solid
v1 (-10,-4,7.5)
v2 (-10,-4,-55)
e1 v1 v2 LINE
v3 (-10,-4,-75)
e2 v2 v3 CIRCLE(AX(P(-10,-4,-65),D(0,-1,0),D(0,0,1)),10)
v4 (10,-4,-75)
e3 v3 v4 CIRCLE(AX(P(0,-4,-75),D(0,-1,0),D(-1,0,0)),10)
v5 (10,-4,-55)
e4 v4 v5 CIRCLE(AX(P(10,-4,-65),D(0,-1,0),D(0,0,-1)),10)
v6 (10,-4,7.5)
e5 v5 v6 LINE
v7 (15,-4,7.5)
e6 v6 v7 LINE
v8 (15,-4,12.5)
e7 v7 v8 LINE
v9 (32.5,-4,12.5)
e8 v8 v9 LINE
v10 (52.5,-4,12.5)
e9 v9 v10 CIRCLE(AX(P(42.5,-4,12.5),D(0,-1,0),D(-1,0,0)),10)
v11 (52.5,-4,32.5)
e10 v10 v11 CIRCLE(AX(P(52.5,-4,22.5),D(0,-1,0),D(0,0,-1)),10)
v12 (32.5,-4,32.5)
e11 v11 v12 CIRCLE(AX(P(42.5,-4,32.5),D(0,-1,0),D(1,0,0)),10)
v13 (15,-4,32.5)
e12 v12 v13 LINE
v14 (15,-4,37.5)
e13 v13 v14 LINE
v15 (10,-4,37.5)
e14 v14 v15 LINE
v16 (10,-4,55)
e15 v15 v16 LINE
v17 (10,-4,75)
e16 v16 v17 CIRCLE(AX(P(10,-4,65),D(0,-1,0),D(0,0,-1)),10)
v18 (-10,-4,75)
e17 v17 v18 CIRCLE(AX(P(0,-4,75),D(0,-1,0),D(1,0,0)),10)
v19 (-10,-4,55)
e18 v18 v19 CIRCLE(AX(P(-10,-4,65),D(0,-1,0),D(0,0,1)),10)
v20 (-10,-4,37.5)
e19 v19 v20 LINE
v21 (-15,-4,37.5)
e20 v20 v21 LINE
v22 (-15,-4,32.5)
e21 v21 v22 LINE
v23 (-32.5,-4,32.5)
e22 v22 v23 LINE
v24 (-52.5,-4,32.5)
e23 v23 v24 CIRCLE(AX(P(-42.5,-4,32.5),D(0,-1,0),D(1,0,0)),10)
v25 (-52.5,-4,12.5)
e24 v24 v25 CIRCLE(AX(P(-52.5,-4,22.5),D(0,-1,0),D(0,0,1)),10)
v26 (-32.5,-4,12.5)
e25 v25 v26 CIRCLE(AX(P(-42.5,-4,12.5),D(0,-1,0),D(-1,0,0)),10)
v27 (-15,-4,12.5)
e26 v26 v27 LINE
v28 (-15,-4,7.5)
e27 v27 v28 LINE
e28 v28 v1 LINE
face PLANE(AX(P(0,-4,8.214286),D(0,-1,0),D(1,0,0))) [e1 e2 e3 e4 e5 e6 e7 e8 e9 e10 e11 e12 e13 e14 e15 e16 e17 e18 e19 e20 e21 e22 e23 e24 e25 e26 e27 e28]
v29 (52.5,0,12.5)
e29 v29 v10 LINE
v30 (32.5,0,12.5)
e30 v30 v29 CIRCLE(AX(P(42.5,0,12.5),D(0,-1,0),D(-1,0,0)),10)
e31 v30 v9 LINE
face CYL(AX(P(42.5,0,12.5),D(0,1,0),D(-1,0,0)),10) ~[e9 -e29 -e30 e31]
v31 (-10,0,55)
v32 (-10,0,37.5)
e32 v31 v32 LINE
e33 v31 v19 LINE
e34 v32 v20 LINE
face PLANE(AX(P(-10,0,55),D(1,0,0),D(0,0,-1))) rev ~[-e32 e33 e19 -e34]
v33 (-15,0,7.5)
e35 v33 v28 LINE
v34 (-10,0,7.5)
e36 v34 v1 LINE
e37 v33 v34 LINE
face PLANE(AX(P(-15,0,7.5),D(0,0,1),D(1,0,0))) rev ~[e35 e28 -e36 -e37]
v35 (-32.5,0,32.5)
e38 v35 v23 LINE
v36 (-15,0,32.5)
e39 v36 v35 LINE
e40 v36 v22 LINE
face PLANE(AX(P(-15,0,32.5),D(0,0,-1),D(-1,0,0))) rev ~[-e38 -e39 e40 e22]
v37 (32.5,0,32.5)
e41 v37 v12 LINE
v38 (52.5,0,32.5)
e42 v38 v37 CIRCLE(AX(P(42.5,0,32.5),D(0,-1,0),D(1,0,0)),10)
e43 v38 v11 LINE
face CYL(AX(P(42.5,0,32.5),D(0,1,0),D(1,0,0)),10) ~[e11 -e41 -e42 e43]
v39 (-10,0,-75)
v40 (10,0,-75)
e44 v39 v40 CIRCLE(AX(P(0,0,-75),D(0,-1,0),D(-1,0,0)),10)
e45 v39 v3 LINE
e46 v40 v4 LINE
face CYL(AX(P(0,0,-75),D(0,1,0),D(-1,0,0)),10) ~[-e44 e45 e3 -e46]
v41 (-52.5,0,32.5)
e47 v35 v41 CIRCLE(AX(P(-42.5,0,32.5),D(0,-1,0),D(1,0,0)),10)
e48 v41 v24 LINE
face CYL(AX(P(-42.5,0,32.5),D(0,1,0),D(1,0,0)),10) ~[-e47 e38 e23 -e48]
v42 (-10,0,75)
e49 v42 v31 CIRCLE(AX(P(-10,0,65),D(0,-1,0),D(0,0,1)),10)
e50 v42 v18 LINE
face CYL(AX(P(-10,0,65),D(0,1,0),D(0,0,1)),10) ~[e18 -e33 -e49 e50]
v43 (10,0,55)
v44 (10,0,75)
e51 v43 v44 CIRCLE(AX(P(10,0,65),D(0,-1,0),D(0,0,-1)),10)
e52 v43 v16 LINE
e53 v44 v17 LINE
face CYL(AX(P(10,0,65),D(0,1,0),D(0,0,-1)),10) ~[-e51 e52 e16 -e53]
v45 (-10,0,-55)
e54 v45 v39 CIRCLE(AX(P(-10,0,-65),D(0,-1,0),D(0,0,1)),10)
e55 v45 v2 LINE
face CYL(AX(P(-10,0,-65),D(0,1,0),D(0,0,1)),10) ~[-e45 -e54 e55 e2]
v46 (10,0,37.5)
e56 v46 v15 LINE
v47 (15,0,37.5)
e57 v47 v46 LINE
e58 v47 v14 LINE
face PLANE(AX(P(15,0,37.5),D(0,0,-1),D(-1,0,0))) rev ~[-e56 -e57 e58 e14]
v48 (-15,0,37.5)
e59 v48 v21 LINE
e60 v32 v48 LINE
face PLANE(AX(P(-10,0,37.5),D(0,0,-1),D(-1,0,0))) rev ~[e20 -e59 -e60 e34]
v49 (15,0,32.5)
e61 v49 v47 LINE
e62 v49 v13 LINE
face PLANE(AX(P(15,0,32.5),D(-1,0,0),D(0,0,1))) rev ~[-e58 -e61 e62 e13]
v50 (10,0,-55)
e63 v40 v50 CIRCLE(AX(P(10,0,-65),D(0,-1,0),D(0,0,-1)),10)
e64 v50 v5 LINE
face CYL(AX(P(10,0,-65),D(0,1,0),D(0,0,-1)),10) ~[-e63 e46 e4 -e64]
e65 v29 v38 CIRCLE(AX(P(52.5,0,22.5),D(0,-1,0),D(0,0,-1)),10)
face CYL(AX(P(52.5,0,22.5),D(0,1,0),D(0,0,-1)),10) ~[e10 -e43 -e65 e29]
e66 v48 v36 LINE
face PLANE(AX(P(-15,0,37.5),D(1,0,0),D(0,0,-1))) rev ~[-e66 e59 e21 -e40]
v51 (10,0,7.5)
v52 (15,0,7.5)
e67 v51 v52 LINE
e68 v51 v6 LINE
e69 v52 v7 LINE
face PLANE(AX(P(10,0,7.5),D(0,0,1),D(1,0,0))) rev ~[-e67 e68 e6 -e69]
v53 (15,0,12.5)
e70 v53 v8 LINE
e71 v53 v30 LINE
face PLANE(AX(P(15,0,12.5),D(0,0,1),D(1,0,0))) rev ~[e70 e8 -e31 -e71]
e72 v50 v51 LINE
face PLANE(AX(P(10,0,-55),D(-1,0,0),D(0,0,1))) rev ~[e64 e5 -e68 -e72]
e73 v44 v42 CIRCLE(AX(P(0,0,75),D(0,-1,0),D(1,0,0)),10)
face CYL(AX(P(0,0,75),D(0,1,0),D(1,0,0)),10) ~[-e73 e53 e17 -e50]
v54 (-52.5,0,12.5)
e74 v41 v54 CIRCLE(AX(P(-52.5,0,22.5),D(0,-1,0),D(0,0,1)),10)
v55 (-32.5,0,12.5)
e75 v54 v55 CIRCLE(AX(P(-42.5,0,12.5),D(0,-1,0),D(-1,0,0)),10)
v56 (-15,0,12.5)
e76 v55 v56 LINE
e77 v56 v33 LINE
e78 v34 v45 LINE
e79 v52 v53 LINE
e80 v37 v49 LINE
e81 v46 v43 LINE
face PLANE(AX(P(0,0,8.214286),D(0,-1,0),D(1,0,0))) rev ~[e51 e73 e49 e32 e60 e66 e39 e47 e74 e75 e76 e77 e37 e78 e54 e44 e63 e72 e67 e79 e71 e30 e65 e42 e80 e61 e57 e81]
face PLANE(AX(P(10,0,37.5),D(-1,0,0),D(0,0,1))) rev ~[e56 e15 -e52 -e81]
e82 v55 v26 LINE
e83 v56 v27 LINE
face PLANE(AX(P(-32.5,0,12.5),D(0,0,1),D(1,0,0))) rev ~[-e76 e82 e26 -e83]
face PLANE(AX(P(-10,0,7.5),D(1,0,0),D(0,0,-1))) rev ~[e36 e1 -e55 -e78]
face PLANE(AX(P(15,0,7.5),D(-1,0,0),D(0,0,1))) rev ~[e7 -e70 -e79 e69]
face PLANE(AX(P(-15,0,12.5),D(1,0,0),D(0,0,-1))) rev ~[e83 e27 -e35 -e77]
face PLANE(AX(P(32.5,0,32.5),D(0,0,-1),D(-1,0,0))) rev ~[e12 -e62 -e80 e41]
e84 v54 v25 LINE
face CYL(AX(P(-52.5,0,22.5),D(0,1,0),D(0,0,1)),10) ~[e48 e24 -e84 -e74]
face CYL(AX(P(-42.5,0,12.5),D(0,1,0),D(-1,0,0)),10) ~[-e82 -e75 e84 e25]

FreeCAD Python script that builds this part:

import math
import FreeCAD as App
import Part
import Sketcher

V = App.Vector

doc = App.newDocument("Part")
params = doc.addObject("Spreadsheet::Sheet", "Params")
for row, (alias, value) in enumerate([
    ("sketch1_radius", "10 mm"),
    ("sketch1_width", "5 mm"),
    ("sketch1_width2", "17.5 mm"),
    ("sketch1_height", "62.5 mm"),
    ("pad1_length", "4 mm"),
], start=1):
    params.set(f"A{row}", alias)
    params.set(f"B{row}", "=" + value)
    params.setAlias(f"B{row}", alias)

body = doc.addObject("PartDesign::Body", "Body")

# Sketch on XZ plane
sketch1 = body.newObject("Sketcher::SketchObject", "Sketch")
sketch1.AttachmentSupport = (doc.getObject("XZ_Plane"), [""])
sketch1.MapMode = "FlatFace"
sketch1.addGeometry([
    Part.LineSegment(V(-32, 12, 0), V(-15, 12, 0)),  # 0
    Part.LineSegment(V(-15, 12, 0), V(-15, 8, 0)),  # 1
    Part.LineSegment(V(-15, 8, 0), V(-10, 8, 0)),  # 2
    Part.LineSegment(V(-10, 8, 0), V(-10, -55, 0)),  # 3
    Part.ArcOfCircle(Part.Circle(V(-10, -65, 0), V(0, 0, 1), 10), math.radians(90), math.radians(270)),  # 4
    Part.ArcOfCircle(Part.Circle(V(0, -75, 0), V(0, 0, 1), 10), math.radians(180), math.radians(360)),  # 5
    Part.ArcOfCircle(Part.Circle(V(10, -65, 0), V(0, 0, 1), 10), math.radians(-90), math.radians(90)),  # 6
    Part.LineSegment(V(10, -55, 0), V(10, 8, 0)),  # 7
    Part.LineSegment(V(10, 8, 0), V(15, 8, 0)),  # 8
    Part.LineSegment(V(15, 8, 0), V(15, 12, 0)),  # 9
    Part.LineSegment(V(15, 12, 0), V(32, 12, 0)),  # 10
    Part.ArcOfCircle(Part.Circle(V(42, 12, 0), V(0, 0, 1), 10), math.radians(180), math.radians(360)),  # 11
    Part.ArcOfCircle(Part.Circle(V(52, 22, 0), V(0, 0, 1), 10), math.radians(-90), math.radians(90)),  # 12
    Part.ArcOfCircle(Part.Circle(V(42, 32, 0), V(0, 0, 1), 10), math.radians(0), math.radians(180)),  # 13
    Part.LineSegment(V(32, 32, 0), V(15, 32, 0)),  # 14
    Part.LineSegment(V(15, 32, 0), V(15, 38, 0)),  # 15
    Part.LineSegment(V(15, 38, 0), V(10, 38, 0)),  # 16
    Part.LineSegment(V(10, 38, 0), V(10, 55, 0)),  # 17
    Part.ArcOfCircle(Part.Circle(V(10, 65, 0), V(0, 0, 1), 10), math.radians(-90), math.radians(90)),  # 18
    Part.ArcOfCircle(Part.Circle(V(0, 75, 0), V(0, 0, 1), 10), math.radians(0), math.radians(180)),  # 19
    Part.ArcOfCircle(Part.Circle(V(-10, 65, 0), V(0, 0, 1), 10), math.radians(90), math.radians(270)),  # 20
    Part.LineSegment(V(-10, 55, 0), V(-10, 38, 0)),  # 21
    Part.LineSegment(V(-10, 38, 0), V(-15, 38, 0)),  # 22
    Part.LineSegment(V(-15, 38, 0), V(-15, 32, 0)),  # 23
    Part.LineSegment(V(-15, 32, 0), V(-32, 32, 0)),  # 24
    Part.ArcOfCircle(Part.Circle(V(-42, 32, 0), V(0, 0, 1), 10), math.radians(0), math.radians(180)),  # 25
    Part.ArcOfCircle(Part.Circle(V(-52, 22, 0), V(0, 0, 1), 10), math.radians(90), math.radians(270)),  # 26
    Part.ArcOfCircle(Part.Circle(V(-42, 12, 0), V(0, 0, 1), 10), math.radians(180), math.radians(360)),  # 27
], False)
sketch1.addConstraint([
    Sketcher.Constraint("Coincident", 0, 2, 1, 1),
    Sketcher.Constraint("Coincident", 1, 2, 2, 1),
    Sketcher.Constraint("Coincident", 2, 2, 3, 1),
    Sketcher.Constraint("Coincident", 3, 2, 4, 1),
    Sketcher.Constraint("Coincident", 4, 2, 5, 1),
    Sketcher.Constraint("Coincident", 5, 2, 6, 1),
    Sketcher.Constraint("Coincident", 6, 2, 7, 1),
    Sketcher.Constraint("Coincident", 7, 2, 8, 1),
    Sketcher.Constraint("Coincident", 8, 2, 9, 1),
    Sketcher.Constraint("Coincident", 9, 2, 10, 1),
    Sketcher.Constraint("Coincident", 10, 2, 11, 1),
    Sketcher.Constraint("Coincident", 11, 2, 12, 1),
    Sketcher.Constraint("Coincident", 12, 2, 13, 1),
    Sketcher.Constraint("Coincident", 13, 2, 14, 1),
    Sketcher.Constraint("Coincident", 14, 2, 15, 1),
    Sketcher.Constraint("Coincident", 15, 2, 16, 1),
    Sketcher.Constraint("Coincident", 16, 2, 17, 1),
    Sketcher.Constraint("Coincident", 17, 2, 18, 1),
    Sketcher.Constraint("Coincident", 18, 2, 19, 1),
    Sketcher.Constraint("Coincident", 19, 2, 20, 1),
    Sketcher.Constraint("Coincident", 20, 2, 21, 1),
    Sketcher.Constraint("Coincident", 21, 2, 22, 1),
    Sketcher.Constraint("Coincident", 22, 2, 23, 1),
    Sketcher.Constraint("Coincident", 23, 2, 24, 1),
    Sketcher.Constraint("Coincident", 24, 2, 25, 1),
    Sketcher.Constraint("Coincident", 25, 2, 26, 1),
    Sketcher.Constraint("Coincident", 26, 2, 27, 1),
    Sketcher.Constraint("Coincident", 27, 2, 0, 1),
    Sketcher.Constraint("Horizontal", 0),
    Sketcher.Constraint("Vertical", 1),
    Sketcher.Constraint("Horizontal", 2),
    Sketcher.Constraint("Vertical", 3),
    Sketcher.Constraint("Vertical", 7),
    Sketcher.Constraint("Horizontal", 8),
    Sketcher.Constraint("Vertical", 9),
    Sketcher.Constraint("Horizontal", 10),
    Sketcher.Constraint("Horizontal", 14),
    Sketcher.Constraint("Vertical", 15),
    Sketcher.Constraint("Horizontal", 16),
    Sketcher.Constraint("Vertical", 17),
    Sketcher.Constraint("Vertical", 21),
    Sketcher.Constraint("Horizontal", 22),
    Sketcher.Constraint("Vertical", 23),
    Sketcher.Constraint("Horizontal", 24),
    Sketcher.Constraint("Equal", 4, 5),
    Sketcher.Constraint("Equal", 5, 6),
    Sketcher.Constraint("Equal", 6, 11),
    Sketcher.Constraint("Equal", 11, 12),
    Sketcher.Constraint("Equal", 12, 13),
    Sketcher.Constraint("Equal", 13, 18),
    Sketcher.Constraint("Equal", 18, 19),
    Sketcher.Constraint("Equal", 19, 20),
    Sketcher.Constraint("Equal", 20, 25),
    Sketcher.Constraint("Equal", 25, 26),
    Sketcher.Constraint("Equal", 26, 27),
    Sketcher.Constraint("Symmetric", 4, 3, 18, 3, -1, 1),
    Sketcher.Constraint("Symmetric", 5, 3, 19, 3, -1, 1),
    Sketcher.Constraint("Symmetric", 6, 3, 20, 3, -1, 1),
    Sketcher.Constraint("Symmetric", 4, 3, 6, 3, -2),
    Sketcher.Constraint("Symmetric", 13, 3, 25, 3, -2),
    Sketcher.Constraint("Symmetric", 12, 3, 26, 3, -2),
    Sketcher.Constraint("Symmetric", 11, 3, 27, 3, -2),
    Sketcher.Constraint("Symmetric", 2, 2, 7, 2, -2),
    Sketcher.Constraint("Symmetric", 0, 2, 9, 2, -2),
    Sketcher.Constraint("Symmetric", 16, 2, 21, 2, -2),
    Sketcher.Constraint("Symmetric", 14, 2, 23, 2, -2),
    Sketcher.Constraint("PointOnObject", 5, 3, -2),
    Sketcher.Constraint("Horizontal", 27, 3, 0, 2),
    Sketcher.Constraint("Horizontal", 5, 3, 4, 2),
    Sketcher.Constraint("Horizontal", 10, 2, 11, 2),
    Sketcher.Constraint("Horizontal", 25, 3, 12, 2),
    Sketcher.Constraint("Horizontal", 12, 2, 13, 2),
    Sketcher.Constraint("Vertical", 11, 3, 13, 3),
    Sketcher.Constraint("Vertical", 20, 3, 2, 2),
    Sketcher.Constraint("Vertical", 3, 2, 4, 2),
    Sketcher.Constraint("Vertical", 12, 3, 11, 2),
    Sketcher.Constraint("Vertical", 9, 2, 14, 2),
    Sketcher.Constraint("Vertical", 7, 2, 16, 2),
    Sketcher.Constraint("Equal", 22, 1),
    Sketcher.Constraint("Equal", 9, 15),
    Sketcher.Constraint("Equal", 24, 17),
    Sketcher.Constraint("Radius", 4, 10.0),
    Sketcher.Constraint("DistanceX", 2, 1, 2, 2, 5.0),
    Sketcher.Constraint("DistanceX", 0, 1, 0, 2, 17.5),
    Sketcher.Constraint("DistanceY", 3, 2, 3, 1, 62.5),
])
sketch1.setExpression("Constraints[81]", "Params.sketch1_radius")
sketch1.setExpression("Constraints[82]", "Params.sketch1_width")
sketch1.setExpression("Constraints[83]", "Params.sketch1_width2")
sketch1.setExpression("Constraints[84]", "Params.sketch1_height")
pad1 = body.newObject("PartDesign::Pad", "Pad")
pad1.Profile = sketch1
pad1.setExpression("Length", "Params.pad1_length")

doc.recompute()
